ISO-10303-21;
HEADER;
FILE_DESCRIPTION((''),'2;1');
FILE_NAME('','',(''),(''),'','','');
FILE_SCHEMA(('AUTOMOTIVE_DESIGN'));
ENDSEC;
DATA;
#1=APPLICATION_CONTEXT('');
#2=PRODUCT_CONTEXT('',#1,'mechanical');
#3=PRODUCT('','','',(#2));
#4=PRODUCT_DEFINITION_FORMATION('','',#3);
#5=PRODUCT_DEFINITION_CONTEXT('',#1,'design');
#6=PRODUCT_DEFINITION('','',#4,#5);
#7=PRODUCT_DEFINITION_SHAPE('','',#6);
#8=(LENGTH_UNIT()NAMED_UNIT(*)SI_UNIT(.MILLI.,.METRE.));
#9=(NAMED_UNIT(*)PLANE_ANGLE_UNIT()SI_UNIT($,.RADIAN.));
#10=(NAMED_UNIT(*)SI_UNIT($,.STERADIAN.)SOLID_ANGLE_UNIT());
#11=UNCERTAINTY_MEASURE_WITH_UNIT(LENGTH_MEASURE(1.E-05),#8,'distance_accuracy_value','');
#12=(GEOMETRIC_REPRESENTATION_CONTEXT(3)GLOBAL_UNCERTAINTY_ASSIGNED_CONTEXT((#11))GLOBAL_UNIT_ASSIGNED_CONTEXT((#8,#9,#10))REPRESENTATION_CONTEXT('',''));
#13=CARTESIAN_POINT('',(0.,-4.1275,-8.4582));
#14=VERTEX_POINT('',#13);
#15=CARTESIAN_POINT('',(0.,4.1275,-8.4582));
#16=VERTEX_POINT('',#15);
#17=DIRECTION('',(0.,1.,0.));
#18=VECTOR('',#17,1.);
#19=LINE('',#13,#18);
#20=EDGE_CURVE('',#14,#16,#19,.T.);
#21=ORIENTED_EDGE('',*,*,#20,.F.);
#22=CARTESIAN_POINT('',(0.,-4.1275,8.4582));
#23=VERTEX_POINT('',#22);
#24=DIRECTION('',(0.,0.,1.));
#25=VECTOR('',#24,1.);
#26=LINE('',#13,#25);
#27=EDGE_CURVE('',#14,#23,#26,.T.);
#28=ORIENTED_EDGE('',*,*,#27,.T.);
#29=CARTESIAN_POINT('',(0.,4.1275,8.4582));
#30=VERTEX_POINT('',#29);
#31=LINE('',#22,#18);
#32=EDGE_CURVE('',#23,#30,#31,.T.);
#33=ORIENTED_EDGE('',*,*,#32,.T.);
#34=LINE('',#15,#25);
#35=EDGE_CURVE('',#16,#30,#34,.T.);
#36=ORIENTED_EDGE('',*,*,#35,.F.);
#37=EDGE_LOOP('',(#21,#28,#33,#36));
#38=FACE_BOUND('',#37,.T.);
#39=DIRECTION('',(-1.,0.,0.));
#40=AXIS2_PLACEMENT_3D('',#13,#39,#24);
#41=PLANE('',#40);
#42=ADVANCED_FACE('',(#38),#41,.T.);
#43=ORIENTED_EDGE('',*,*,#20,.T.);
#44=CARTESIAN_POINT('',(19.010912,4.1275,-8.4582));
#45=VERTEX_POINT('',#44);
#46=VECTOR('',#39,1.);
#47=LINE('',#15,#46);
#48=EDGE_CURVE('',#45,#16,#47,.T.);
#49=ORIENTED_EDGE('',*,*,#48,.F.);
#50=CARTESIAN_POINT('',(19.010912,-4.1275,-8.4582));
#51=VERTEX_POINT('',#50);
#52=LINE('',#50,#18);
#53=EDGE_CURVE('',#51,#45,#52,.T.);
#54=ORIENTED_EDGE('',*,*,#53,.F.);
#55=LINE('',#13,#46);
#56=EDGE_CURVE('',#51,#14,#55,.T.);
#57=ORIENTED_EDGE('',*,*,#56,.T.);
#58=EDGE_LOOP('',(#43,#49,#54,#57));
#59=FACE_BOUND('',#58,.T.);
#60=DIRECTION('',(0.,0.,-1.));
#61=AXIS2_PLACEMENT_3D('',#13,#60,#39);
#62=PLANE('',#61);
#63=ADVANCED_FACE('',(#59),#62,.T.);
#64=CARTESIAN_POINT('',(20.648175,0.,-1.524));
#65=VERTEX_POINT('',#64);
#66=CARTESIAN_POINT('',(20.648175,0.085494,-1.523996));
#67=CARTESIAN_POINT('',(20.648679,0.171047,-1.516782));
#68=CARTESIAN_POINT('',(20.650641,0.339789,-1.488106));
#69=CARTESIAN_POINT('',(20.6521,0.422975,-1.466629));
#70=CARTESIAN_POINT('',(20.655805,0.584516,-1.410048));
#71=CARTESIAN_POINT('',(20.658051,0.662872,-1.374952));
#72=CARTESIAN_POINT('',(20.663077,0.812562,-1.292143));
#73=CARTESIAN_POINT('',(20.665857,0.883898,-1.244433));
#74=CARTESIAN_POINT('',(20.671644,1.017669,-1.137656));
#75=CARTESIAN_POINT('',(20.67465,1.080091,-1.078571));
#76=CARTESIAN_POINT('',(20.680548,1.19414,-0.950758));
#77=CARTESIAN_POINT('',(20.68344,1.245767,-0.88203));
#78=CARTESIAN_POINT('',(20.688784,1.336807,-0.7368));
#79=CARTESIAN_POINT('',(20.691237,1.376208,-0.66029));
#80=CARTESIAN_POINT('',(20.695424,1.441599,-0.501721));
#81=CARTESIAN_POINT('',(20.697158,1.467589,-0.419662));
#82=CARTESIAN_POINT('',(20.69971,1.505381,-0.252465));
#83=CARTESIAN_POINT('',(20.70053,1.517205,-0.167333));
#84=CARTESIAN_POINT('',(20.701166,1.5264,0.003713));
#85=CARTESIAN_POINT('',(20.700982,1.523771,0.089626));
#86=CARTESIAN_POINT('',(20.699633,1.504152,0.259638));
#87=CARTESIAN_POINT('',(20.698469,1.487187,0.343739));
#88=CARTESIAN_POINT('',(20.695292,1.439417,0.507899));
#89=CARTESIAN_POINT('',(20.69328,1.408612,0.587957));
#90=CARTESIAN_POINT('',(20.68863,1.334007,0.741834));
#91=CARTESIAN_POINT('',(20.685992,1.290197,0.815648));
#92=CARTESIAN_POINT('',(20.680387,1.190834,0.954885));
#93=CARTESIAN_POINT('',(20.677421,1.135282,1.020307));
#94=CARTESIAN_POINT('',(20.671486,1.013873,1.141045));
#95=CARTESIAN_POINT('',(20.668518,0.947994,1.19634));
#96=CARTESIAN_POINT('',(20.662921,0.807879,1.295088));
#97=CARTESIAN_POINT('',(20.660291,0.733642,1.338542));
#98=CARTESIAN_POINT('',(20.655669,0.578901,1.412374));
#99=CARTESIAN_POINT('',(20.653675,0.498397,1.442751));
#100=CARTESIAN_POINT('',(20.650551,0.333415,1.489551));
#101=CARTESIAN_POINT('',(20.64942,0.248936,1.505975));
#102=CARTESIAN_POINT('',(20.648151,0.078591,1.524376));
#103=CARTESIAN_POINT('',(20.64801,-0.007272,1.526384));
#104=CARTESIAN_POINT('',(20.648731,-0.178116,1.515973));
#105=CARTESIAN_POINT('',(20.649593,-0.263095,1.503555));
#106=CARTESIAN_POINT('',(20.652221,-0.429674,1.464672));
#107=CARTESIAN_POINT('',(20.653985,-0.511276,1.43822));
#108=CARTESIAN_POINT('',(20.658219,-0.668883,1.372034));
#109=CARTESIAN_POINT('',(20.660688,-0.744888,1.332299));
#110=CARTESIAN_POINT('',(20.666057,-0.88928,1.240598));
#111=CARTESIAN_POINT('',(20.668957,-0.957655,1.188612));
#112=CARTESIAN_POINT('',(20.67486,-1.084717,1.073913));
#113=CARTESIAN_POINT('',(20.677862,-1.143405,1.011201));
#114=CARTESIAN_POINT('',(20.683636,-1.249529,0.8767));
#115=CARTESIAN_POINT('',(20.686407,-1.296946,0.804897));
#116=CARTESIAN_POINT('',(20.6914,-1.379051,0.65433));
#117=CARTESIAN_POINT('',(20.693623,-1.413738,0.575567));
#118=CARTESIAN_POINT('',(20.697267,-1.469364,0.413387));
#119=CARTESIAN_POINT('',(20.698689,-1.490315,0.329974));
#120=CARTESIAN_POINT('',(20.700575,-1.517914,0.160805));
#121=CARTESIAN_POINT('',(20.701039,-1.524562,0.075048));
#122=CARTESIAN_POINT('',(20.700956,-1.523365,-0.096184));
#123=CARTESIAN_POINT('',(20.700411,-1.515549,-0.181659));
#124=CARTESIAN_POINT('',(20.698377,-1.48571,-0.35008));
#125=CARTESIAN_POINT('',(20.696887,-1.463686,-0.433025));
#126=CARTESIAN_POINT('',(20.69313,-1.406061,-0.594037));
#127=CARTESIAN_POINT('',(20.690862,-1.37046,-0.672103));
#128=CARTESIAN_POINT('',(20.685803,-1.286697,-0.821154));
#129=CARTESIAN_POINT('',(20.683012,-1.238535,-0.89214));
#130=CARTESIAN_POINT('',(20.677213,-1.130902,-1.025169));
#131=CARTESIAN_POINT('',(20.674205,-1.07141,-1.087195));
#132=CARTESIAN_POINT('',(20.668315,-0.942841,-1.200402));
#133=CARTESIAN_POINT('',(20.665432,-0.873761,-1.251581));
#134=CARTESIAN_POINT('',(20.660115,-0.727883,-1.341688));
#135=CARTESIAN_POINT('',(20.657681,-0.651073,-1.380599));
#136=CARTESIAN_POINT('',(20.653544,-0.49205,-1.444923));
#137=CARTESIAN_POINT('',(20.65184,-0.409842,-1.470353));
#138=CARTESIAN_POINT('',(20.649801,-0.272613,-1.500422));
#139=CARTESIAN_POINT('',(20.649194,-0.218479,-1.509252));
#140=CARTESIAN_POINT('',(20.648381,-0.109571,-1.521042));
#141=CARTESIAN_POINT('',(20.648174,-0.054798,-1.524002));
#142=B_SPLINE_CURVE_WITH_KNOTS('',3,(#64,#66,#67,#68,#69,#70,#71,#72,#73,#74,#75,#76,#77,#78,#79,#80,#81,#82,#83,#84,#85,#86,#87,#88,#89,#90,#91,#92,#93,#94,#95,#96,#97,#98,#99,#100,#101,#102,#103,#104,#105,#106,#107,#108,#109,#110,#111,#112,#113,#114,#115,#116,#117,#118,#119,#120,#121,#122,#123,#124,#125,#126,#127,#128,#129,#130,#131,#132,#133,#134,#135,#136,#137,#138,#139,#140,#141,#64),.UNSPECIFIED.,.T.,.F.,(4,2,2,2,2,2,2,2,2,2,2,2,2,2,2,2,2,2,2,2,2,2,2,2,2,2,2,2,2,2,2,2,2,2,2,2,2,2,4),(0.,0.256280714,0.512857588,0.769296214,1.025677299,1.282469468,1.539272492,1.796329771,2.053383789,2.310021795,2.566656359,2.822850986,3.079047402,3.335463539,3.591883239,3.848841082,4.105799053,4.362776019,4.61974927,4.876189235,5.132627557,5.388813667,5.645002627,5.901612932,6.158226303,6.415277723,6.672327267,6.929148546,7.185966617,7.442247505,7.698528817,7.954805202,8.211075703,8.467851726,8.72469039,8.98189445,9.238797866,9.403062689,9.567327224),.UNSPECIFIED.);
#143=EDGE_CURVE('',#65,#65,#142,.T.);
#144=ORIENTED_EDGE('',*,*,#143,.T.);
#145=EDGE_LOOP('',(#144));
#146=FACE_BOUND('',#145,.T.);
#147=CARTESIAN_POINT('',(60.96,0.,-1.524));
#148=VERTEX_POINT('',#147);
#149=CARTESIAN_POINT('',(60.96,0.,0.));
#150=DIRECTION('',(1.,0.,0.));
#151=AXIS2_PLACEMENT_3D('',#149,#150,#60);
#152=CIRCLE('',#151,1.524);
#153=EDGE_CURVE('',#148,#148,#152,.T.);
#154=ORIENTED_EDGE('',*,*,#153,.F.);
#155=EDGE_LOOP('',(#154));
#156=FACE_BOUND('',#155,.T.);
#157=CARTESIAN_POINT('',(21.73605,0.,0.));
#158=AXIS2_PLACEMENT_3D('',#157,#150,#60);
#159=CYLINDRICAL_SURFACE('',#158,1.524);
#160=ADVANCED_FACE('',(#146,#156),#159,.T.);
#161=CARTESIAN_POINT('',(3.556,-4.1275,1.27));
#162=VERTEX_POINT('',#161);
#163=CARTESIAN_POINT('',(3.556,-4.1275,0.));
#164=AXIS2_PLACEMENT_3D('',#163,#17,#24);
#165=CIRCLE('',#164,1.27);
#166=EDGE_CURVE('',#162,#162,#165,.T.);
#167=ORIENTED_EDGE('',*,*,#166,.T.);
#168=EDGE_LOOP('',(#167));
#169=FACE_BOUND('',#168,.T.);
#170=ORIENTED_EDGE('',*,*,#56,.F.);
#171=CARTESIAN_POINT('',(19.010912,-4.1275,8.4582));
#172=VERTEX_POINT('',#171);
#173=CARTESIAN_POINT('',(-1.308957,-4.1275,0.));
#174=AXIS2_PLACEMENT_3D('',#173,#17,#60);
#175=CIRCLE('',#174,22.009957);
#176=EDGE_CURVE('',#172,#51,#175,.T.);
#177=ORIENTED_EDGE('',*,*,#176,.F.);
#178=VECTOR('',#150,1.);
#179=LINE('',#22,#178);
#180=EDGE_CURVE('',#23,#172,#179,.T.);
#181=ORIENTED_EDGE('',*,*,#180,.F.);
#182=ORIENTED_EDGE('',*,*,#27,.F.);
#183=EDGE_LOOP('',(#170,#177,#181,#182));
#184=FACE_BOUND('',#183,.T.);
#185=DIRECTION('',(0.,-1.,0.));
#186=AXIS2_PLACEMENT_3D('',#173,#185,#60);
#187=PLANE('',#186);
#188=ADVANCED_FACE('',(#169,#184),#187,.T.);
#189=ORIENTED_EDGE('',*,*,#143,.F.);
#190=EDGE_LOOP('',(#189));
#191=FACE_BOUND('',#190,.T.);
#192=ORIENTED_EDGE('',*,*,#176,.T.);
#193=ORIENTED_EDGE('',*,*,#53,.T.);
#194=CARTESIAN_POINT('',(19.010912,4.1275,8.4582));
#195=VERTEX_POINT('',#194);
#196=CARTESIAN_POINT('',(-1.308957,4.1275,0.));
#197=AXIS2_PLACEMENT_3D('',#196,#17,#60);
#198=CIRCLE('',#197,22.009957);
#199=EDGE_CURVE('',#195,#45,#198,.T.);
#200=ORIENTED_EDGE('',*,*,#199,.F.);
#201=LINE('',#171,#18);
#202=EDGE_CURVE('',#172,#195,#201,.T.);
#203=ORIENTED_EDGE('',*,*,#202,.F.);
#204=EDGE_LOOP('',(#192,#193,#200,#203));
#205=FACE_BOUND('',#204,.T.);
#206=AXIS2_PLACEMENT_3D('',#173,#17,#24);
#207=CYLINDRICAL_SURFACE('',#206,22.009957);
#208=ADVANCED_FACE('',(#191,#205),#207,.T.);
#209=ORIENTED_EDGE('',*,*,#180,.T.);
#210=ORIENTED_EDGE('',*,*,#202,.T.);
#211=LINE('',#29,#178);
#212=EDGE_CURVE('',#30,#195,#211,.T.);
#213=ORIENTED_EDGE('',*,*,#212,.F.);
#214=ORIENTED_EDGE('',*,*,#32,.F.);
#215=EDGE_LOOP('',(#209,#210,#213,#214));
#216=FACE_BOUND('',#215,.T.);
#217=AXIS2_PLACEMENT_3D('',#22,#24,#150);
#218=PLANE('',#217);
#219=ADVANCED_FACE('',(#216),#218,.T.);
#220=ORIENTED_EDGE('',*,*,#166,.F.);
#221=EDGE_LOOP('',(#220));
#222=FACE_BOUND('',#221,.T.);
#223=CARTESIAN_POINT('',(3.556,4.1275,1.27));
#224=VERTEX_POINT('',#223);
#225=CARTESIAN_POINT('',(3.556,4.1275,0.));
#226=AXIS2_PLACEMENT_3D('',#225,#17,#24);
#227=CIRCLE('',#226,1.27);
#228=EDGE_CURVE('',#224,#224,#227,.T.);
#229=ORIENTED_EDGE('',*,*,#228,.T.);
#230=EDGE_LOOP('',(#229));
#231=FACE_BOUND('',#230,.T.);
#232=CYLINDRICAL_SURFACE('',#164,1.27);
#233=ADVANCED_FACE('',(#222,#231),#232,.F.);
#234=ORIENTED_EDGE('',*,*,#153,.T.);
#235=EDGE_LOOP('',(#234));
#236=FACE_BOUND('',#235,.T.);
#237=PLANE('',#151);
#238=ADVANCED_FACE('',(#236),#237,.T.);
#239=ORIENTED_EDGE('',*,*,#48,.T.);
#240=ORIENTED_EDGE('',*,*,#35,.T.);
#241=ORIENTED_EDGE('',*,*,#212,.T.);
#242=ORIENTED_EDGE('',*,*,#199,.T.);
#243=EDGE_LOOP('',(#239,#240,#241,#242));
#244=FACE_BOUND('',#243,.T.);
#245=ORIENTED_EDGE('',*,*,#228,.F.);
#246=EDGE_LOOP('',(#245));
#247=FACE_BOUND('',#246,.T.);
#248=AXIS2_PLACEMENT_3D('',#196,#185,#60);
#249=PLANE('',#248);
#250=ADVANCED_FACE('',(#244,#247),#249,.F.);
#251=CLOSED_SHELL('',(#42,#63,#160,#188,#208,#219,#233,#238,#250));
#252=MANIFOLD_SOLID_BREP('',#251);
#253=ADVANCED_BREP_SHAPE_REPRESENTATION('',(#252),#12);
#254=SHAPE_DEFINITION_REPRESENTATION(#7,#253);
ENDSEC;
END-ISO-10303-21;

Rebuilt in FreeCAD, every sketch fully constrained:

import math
import FreeCAD as App
import Part
import Sketcher
Q = App.Units.Quantity


def add_polygon(sketch, points):
    """Adds a closed chain of lines whose ends are joined by coincident constraints."""
    first, n = sketch.GeometryCount, len(points)
    for a, b in zip(points, points[1:] + points[:1]):
        sketch.addGeometry(Part.LineSegment(App.Vector(*a, 0), App.Vector(*b, 0)), False)
    for i in range(n):
        sketch.addConstraint(Sketcher.Constraint("Coincident", first + i, 2, first + (i + 1) % n, 1))

doc = App.newDocument("Part")
body = doc.addObject("PartDesign::Body", "Body")

# Sketch on XZ plane
sketch1 = body.newObject("Sketcher::SketchObject", "Sketch")
sketch1.AttachmentSupport = (doc.getObject("XZ_Plane"), [""])
sketch1.MapMode = "FlatFace"
sketch1.addGeometry(Part.LineSegment(App.Vector(19, -8.5, 0), App.Vector(0, -8.5, 0)), False)
sketch1.addGeometry(Part.LineSegment(App.Vector(0, -8.5, 0), App.Vector(0, 8.5, 0)), False)
sketch1.addGeometry(Part.LineSegment(App.Vector(0, 8.5, 0), App.Vector(19, 8.5, 0)), False)
sketch1.addGeometry(Part.ArcOfCircle(Part.Circle(App.Vector(-1.3, 0, 0), App.Vector(0, 0, 1), 22), math.radians(-23), math.radians(23)), False)
sketch1.addGeometry(Part.Circle(App.Vector(3.6, 0, 0), App.Vector(0, 0, 1), 1.3), False)
sketch1.addConstraint(Sketcher.Constraint("Coincident", 0, 2, 1, 1))
sketch1.addConstraint(Sketcher.Constraint("Coincident", 1, 2, 2, 1))
sketch1.addConstraint(Sketcher.Constraint("Coincident", 2, 2, 3, 2))
sketch1.addConstraint(Sketcher.Constraint("Coincident", 3, 1, 0, 1))
sketch1.addConstraint(Sketcher.Constraint("Horizontal", 0))
sketch1.addConstraint(Sketcher.Constraint("Vertical", 1))
sketch1.addConstraint(Sketcher.Constraint("Horizontal", 2))
sketch1.addConstraint(Sketcher.Constraint("Symmetric", 0, 2, 1, 2, -1, 1))
sketch1.addConstraint(Sketcher.Constraint("PointOnObject", 3, 3, -1))
sketch1.addConstraint(Sketcher.Constraint("PointOnObject", 4, 3, -1))
sketch1.addConstraint(Sketcher.Constraint("Diameter", 4, Q("0.1 in")))
sketch1.addConstraint(Sketcher.Constraint("DistanceY", 1, 1, 1, 2, Q("0.666 in")))
sketch1.addConstraint(Sketcher.Constraint("DistanceX", -1, 1, 4, 3, Q("0.14 in")))
sketch1.addConstraint(Sketcher.Constraint("Radius", 3, Q("22.009957 mm")))
sketch1.addConstraint(Sketcher.Constraint("DistanceX", 0, 2, 0, 1, Q("19.010912 mm")))
pad1 = body.newObject("PartDesign::Pad", "Pad")
pad1.Profile = sketch1
pad1.Type = "TwoLengths"
pad1.Length = Q("0.1625 in")
pad1.Length2 = Q("0.1625 in")
pad1.Reversed = True

# Sketch on XZ plane
sketch2 = body.newObject("Sketcher::SketchObject", "Sketch001")
sketch2.AttachmentSupport = (doc.getObject("XZ_Plane"), [""])
sketch2.MapMode = "FlatFace"
add_polygon(sketch2, [(61, 0), (61, -1.5), (20, -1.5), (20, 0)])  # lines 0-3
sketch2.addConstraint(Sketcher.Constraint("Vertical", 0))
sketch2.addConstraint(Sketcher.Constraint("Horizontal", 1))
sketch2.addConstraint(Sketcher.Constraint("Vertical", 2))
sketch2.addConstraint(Sketcher.Constraint("Horizontal", 3))
sketch2.addConstraint(Sketcher.Constraint("PointOnObject", 2, 2, -1))
sketch2.addConstraint(Sketcher.Constraint("DistanceY", 0, 2, 0, 1, Q("0.06 in")))
sketch2.addConstraint(Sketcher.Constraint("DistanceX", -1, 1, 0, 2, Q("2.4 in")))
sketch2.addConstraint(Sketcher.Constraint("DistanceX", 1, 2, 1, 1, Q("40.943056 mm")))
revolution = body.newObject("PartDesign::Revolution", "Revolution")
revolution.Profile = sketch2
revolution.ReferenceAxis = (sketch2, ["H_Axis"])
revolution.Angle = 360

doc.recompute()
